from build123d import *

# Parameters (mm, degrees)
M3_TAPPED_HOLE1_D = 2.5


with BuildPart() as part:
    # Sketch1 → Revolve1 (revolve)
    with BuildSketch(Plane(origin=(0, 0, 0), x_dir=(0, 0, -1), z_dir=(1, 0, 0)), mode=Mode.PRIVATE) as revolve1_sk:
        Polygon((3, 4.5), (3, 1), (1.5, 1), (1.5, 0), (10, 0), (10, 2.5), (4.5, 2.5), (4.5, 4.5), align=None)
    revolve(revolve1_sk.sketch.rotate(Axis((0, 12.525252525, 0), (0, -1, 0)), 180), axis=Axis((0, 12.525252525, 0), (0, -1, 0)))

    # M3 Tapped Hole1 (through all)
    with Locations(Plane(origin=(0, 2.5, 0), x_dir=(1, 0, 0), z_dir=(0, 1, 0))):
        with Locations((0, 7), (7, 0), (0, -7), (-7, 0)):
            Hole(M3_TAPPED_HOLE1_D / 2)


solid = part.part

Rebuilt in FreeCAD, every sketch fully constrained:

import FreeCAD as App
import Part
import Sketcher

V = App.Vector


def add_polygon(sketch, points):
    """Adds a closed chain of lines whose ends are joined by coincident constraints."""
    first, n = sketch.GeometryCount, len(points)
    for a, b in zip(points, points[1:] + points[:1]):
        sketch.addGeometry(Part.LineSegment(App.Vector(*a, 0), App.Vector(*b, 0)), False)
    for i in range(n):
        sketch.addConstraint(Sketcher.Constraint("Coincident", first + i, 2, first + (i + 1) % n, 1))

doc = App.newDocument("Part")
body = doc.addObject("PartDesign::Body", "Body")

# Sketch on YZ plane
sketch1 = body.newObject("Sketcher::SketchObject", "Sketch")
sketch1.AttachmentSupport = (doc.getObject("YZ_Plane"), [""])
sketch1.MapMode = "FlatFace"
add_polygon(sketch1, [(4.5, -3), (1, -3), (1, -1.5), (0, -1.5), (0, -10), (2.5, -10), (2.5, -4.5), (4.5, -4.5)])  # lines 0-7
sketch1.addConstraint([
    Sketcher.Constraint("Horizontal", 0),
    Sketcher.Constraint("Vertical", 1),
    Sketcher.Constraint("Horizontal", 2),
    Sketcher.Constraint("Vertical", 3),
    Sketcher.Constraint("Horizontal", 4),
    Sketcher.Constraint("Vertical", 5),
    Sketcher.Constraint("Horizontal", 6),
    Sketcher.Constraint("Vertical", 7),
    Sketcher.Constraint("PointOnObject", 2, 2, -2),
    Sketcher.Constraint("Equal", 1, 7),
    Sketcher.Constraint("DistanceX", 2, 2, 2, 1, 1.0),
    Sketcher.Constraint("DistanceX", 6, 1, 6, 2, 2.0),
    Sketcher.Constraint("DistanceX", 0, 2, 0, 1, 3.5),
    Sketcher.Constraint("DistanceY", 1, 1, 1, 2, 1.5),
    Sketcher.Constraint("DistanceY", 3, 2, 3, 1, 8.5),
    Sketcher.Constraint("DistanceY", 0, 2, -1, 1, 3.0),
])
revolution = body.newObject("PartDesign::Revolution", "Revolution")
revolution.Profile = sketch1
revolution.ReferenceAxis = (sketch1, ["H_Axis"])
revolution.Angle = 360

# Sketch on XZ plane
sketch2 = body.newObject("Sketcher::SketchObject", "Sketch001")
sketch2.AttachmentSupport = (doc.getObject("XZ_Plane"), [""])
sketch2.MapMode = "FlatFace"
sketch2.AttachmentOffset = App.Placement(V(0, 0, -2.5), App.Rotation())
sketch2.addGeometry([
    Part.Circle(V(0, -7, 0), V(0, 0, 1), 1.2),
    Part.Circle(V(7, 0, 0), V(0, 0, 1), 1.2),
    Part.Circle(V(0, 7, 0), V(0, 0, 1), 1.2),
    Part.Circle(V(-7, 0, 0), V(0, 0, 1), 1.2),
], False)
sketch2.addConstraint([
    Sketcher.Constraint("Equal", 0, 1),
    Sketcher.Constraint("Equal", 1, 2),
    Sketcher.Constraint("Equal", 2, 3),
    Sketcher.Constraint("Symmetric", 0, 3, 2, 3, -1, 1),
    Sketcher.Constraint("Symmetric", 1, 3, 3, 3, -1, 1),
    Sketcher.Constraint("PointOnObject", 0, 3, -2),
    Sketcher.Constraint("PointOnObject", 1, 3, -1),
    Sketcher.Constraint("Diameter", 0, 2.5),
    Sketcher.Constraint("DistanceY", 0, 3, -1, 1, 7.0),
    Sketcher.Constraint("DistanceX", -1, 1, 1, 3, 7.0),
])
doc.recompute()
hole = body.newObject("PartDesign::Hole", "Hole")
hole.Profile = sketch2
hole.ThreadType = "None"
hole.Diameter = 2.5
hole.DepthType = "ThroughAll"
hole.Reversed = True

doc.recompute()
